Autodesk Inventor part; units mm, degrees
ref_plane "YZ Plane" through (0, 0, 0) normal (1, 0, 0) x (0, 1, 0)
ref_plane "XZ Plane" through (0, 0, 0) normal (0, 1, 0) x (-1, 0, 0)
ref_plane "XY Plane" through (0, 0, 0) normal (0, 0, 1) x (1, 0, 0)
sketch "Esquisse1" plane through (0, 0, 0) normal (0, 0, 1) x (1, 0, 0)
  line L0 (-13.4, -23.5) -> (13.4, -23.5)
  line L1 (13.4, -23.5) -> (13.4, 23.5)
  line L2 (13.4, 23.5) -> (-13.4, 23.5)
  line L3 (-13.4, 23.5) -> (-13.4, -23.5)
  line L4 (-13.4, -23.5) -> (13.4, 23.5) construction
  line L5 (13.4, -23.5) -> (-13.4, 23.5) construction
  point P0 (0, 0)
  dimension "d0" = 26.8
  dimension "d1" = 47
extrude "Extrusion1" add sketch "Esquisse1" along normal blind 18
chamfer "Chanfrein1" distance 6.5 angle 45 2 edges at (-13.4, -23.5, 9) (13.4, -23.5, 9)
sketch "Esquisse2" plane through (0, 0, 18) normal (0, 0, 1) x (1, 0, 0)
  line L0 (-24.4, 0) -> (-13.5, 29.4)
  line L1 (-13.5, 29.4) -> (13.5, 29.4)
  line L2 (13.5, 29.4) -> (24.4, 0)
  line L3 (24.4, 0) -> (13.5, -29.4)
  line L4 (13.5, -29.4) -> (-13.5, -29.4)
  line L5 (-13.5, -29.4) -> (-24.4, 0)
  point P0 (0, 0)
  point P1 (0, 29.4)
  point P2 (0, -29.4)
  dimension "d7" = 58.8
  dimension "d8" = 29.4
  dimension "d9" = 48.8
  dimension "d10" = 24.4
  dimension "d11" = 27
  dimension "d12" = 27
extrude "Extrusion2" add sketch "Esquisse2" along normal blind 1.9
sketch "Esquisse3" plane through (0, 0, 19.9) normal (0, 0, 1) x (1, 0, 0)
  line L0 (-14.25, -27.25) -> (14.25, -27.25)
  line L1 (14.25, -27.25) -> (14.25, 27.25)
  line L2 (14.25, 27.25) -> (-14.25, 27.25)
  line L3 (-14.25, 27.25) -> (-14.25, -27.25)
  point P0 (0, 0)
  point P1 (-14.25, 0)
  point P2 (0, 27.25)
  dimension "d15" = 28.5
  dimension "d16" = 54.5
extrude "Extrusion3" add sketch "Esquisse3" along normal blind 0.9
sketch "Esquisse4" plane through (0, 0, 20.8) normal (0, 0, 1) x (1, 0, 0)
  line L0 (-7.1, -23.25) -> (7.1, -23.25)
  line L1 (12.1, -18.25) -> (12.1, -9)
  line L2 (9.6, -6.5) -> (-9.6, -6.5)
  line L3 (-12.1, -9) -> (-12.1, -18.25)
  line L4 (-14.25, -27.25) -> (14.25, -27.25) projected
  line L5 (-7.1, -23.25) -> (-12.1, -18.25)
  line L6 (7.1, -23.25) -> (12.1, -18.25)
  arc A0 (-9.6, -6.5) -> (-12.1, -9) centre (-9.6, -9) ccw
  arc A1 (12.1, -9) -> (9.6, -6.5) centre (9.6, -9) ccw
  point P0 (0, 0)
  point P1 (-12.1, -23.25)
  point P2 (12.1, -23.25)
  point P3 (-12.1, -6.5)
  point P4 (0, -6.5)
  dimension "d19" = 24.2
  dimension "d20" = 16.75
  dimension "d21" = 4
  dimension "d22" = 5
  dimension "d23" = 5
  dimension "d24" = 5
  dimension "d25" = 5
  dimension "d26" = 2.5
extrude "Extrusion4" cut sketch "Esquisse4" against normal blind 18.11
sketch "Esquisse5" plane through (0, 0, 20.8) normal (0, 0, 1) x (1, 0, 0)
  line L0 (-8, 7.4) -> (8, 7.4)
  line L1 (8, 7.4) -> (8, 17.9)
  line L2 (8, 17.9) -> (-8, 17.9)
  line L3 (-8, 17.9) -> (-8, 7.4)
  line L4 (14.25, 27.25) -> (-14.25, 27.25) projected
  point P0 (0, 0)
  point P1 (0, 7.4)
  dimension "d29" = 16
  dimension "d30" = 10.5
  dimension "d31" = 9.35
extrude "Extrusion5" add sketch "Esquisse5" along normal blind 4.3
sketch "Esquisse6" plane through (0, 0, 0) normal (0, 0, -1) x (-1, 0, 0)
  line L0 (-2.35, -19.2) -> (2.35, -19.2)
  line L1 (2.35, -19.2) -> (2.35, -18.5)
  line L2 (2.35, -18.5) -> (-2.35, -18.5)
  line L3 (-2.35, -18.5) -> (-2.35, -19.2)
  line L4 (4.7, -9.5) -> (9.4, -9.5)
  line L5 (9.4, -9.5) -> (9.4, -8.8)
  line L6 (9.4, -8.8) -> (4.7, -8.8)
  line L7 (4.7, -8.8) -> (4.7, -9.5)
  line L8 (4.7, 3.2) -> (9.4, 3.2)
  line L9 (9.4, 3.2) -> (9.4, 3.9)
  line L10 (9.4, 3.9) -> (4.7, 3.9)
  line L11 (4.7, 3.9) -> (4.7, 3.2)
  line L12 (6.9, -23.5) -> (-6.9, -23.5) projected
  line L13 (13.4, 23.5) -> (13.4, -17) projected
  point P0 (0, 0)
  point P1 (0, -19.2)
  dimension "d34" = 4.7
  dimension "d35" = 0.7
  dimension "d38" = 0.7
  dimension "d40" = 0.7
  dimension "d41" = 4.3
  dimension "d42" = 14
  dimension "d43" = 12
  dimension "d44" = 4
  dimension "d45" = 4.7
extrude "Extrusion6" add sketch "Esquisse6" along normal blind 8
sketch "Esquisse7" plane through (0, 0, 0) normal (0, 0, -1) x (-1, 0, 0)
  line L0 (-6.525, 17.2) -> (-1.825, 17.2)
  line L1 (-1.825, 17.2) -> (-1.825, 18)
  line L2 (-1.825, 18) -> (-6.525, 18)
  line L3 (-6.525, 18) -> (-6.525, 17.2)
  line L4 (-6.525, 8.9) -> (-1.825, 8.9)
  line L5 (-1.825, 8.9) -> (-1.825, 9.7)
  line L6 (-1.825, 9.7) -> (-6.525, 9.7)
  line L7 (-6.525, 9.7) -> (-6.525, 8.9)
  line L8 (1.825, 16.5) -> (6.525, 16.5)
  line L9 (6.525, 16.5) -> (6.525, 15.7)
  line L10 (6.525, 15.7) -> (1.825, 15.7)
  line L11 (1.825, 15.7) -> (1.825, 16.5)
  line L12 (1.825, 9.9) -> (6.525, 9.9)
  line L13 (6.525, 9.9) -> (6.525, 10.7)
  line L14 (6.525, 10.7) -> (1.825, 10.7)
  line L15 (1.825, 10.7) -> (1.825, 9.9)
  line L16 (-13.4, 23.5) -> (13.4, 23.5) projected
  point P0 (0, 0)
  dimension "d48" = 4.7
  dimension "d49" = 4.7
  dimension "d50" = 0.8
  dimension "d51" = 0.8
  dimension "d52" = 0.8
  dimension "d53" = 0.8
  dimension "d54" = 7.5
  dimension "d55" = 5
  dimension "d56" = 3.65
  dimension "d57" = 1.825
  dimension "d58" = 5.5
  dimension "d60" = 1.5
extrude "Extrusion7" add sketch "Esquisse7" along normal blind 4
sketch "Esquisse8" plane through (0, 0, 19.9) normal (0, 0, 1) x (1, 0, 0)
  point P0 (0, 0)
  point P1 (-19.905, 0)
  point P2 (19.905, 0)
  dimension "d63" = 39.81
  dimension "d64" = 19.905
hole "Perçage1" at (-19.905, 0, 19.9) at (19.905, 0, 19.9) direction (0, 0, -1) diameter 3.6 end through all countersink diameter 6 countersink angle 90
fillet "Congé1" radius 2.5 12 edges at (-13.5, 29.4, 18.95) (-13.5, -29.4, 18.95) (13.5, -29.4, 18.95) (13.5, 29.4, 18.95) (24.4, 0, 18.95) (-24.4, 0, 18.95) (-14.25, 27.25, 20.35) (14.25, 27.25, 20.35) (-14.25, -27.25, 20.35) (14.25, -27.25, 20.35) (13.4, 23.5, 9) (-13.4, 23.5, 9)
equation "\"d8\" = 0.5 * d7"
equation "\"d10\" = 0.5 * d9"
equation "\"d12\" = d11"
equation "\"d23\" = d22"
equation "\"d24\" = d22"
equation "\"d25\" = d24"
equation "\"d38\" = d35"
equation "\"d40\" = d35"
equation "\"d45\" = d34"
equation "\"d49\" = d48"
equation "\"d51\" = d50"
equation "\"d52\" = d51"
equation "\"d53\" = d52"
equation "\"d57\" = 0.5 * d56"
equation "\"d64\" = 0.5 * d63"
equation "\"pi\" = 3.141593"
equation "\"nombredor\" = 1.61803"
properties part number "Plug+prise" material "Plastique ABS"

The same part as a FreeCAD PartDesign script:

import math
import FreeCAD as App
import Part
import Sketcher
from FreeCAD import Vector


def edges_at(feature, points):
    """Names of the edges that pass closest to the given points."""
    edges = feature.Shape.Edges
    near = lambda p: min(range(len(edges)), key=lambda i: edges[i].distToShape(Part.Vertex(*p))[0])
    return sorted({f"Edge{near(p) + 1}" for p in points})

doc = App.newDocument("Part")
body = doc.addObject("PartDesign::Body", "Body")

# Sketch on XY plane
sketch1 = body.newObject("Sketcher::SketchObject", "Sketch")
sketch1.AttachmentSupport = (doc.getObject("XY_Plane"), [""])
sketch1.MapMode = "FlatFace"
sketch1.addGeometry([
    Part.LineSegment(Vector(-13, 24, 0), Vector(-13, -24, 0)),
    Part.LineSegment(Vector(-13, -24, 0), Vector(13, -24, 0)),
    Part.LineSegment(Vector(13, -24, 0), Vector(13, 24, 0)),
    Part.LineSegment(Vector(13, 24, 0), Vector(-13, 24, 0)),
], False)
sketch1.addConstraint([
    Sketcher.Constraint("Coincident", 0, 2, 1, 1),
    Sketcher.Constraint("Coincident", 1, 2, 2, 1),
    Sketcher.Constraint("Coincident", 2, 2, 3, 1),
    Sketcher.Constraint("Coincident", 3, 2, 0, 1),
    Sketcher.Constraint("Vertical", 0),
    Sketcher.Constraint("Horizontal", 1),
    Sketcher.Constraint("Vertical", 2),
    Sketcher.Constraint("Horizontal", 3),
    Sketcher.Constraint("Symmetric", 0, 2, 2, 2, -1, 1),
    Sketcher.Constraint("DistanceY", 0, 2, 0, 1, 47.0),
    Sketcher.Constraint("DistanceX", 1, 1, 1, 2, 26.8),
])
pad1 = body.newObject("PartDesign::Pad", "Pad")
pad1.Profile = sketch1
pad1.Length = 18
doc.recompute()

chamfer = body.newObject("PartDesign::Chamfer", "Chamfer")
chamfer.Base = (pad1, edges_at(pad1, [(-13.4, -23.5, 9), (13.4, -23.5, 9)]))
chamfer.Size = 6.5

# Sketch on XY plane
sketch2 = body.newObject("Sketcher::SketchObject", "Sketch001")
sketch2.AttachmentSupport = (doc.getObject("XY_Plane"), [""])
sketch2.MapMode = "FlatFace"
sketch2.AttachmentOffset = App.Placement(Vector(0, 0, 18), App.Rotation())
sketch2.addGeometry([
    Part.LineSegment(Vector(-14, 29, 0), Vector(-24, 0, 0)),  # 0
    Part.LineSegment(Vector(-24, 0, 0), Vector(-14, -29, 0)),  # 1
    Part.LineSegment(Vector(-14, -29, 0), Vector(14, -29, 0)),  # 2
    Part.LineSegment(Vector(14, -29, 0), Vector(24, 0, 0)),  # 3
    Part.LineSegment(Vector(24, 0, 0), Vector(14, 29, 0)),  # 4
    Part.LineSegment(Vector(14, 29, 0), Vector(-14, 29, 0)),  # 5
], False)
sketch2.addConstraint([
    Sketcher.Constraint("Coincident", 0, 2, 1, 1),
    Sketcher.Constraint("Coincident", 1, 2, 2, 1),
    Sketcher.Constraint("Coincident", 2, 2, 3, 1),
    Sketcher.Constraint("Coincident", 3, 2, 4, 1),
    Sketcher.Constraint("Coincident", 4, 2, 5, 1),
    Sketcher.Constraint("Coincident", 5, 2, 0, 1),
    Sketcher.Constraint("Horizontal", 2),
    Sketcher.Constraint("Horizontal", 5),
    Sketcher.Constraint("Symmetric", 0, 2, 3, 2, -1, 1),
    Sketcher.Constraint("Symmetric", 1, 2, 4, 2, -1, 1),
    Sketcher.Constraint("PointOnObject", 0, 2, -1),
    Sketcher.Constraint("Parallel", 0, 3),
    Sketcher.Constraint("Vertical", 2, 2, 4, 2),
    Sketcher.Constraint("DistanceX", 2, 1, 2, 2, 27.0),
    Sketcher.Constraint("DistanceX", 0, 2, -1, 1, 24.4),
    Sketcher.Constraint("DistanceY", 1, 2, -1, 1, 29.4),
])
pad2 = body.newObject("PartDesign::Pad", "Pad001")
pad2.Profile = sketch2
pad2.Length = 1.9

# Sketch on XY plane
sketch3 = body.newObject("Sketcher::SketchObject", "Sketch002")
sketch3.AttachmentSupport = (doc.getObject("XY_Plane"), [""])
sketch3.MapMode = "FlatFace"
sketch3.AttachmentOffset = App.Placement(Vector(0, 0, 19.9), App.Rotation())
sketch3.addGeometry([
    Part.LineSegment(Vector(-14, 27, 0), Vector(-14, -27, 0)),
    Part.LineSegment(Vector(-14, -27, 0), Vector(14, -27, 0)),
    Part.LineSegment(Vector(14, -27, 0), Vector(14, 27, 0)),
    Part.LineSegment(Vector(14, 27, 0), Vector(-14, 27, 0)),
], False)
sketch3.addConstraint([
    Sketcher.Constraint("Coincident", 0, 2, 1, 1),
    Sketcher.Constraint("Coincident", 1, 2, 2, 1),
    Sketcher.Constraint("Coincident", 2, 2, 3, 1),
    Sketcher.Constraint("Coincident", 3, 2, 0, 1),
    Sketcher.Constraint("Vertical", 0),
    Sketcher.Constraint("Horizontal", 1),
    Sketcher.Constraint("Vertical", 2),
    Sketcher.Constraint("Horizontal", 3),
    Sketcher.Constraint("Symmetric", 0, 2, 2, 2, -1, 1),
    Sketcher.Constraint("DistanceX", 1, 1, 1, 2, 28.5),
    Sketcher.Constraint("DistanceY", 0, 2, 0, 1, 54.5),
])
pad3 = body.newObject("PartDesign::Pad", "Pad002")
pad3.Profile = sketch3
pad3.Length = 0.9

# Sketch on XY plane
sketch4 = body.newObject("Sketcher::SketchObject", "Sketch003")
sketch4.AttachmentSupport = (doc.getObject("XY_Plane"), [""])
sketch4.MapMode = "FlatFace"
sketch4.AttachmentOffset = App.Placement(Vector(0, 0, 20.8), App.Rotation())
sketch4.addGeometry([
    Part.LineSegment(Vector(-12.1, -18.2, 0), Vector(-7.1, -23.2, 0)),  # 0
    Part.LineSegment(Vector(-7.1, -23.2, 0), Vector(7.1, -23.2, 0)),  # 1
    Part.LineSegment(Vector(7.1, -23.2, 0), Vector(12.1, -18.2, 0)),  # 2
    Part.LineSegment(Vector(12.1, -18.2, 0), Vector(12.1, -9, 0)),  # 3
    Part.ArcOfCircle(Part.Circle(Vector(9.6, -9, 0), Vector(0, 0, 1), 2.5), math.radians(0), math.radians(90)),  # 4
    Part.LineSegment(Vector(9.6, -6.5, 0), Vector(-9.6, -6.5, 0)),  # 5
    Part.ArcOfCircle(Part.Circle(Vector(-9.6, -9, 0), Vector(0, 0, 1), 2.5), math.radians(90), math.radians(180)),  # 6
    Part.LineSegment(Vector(-12.1, -9, 0), Vector(-12.1, -18.2, 0)),  # 7
], False)
sketch4.addConstraint([
    Sketcher.Constraint("Coincident", 0, 2, 1, 1),
    Sketcher.Constraint("Coincident", 1, 2, 2, 1),
    Sketcher.Constraint("Coincident", 2, 2, 3, 1),
    Sketcher.Constraint("Tangent", 3, 2, 4, 1),
    Sketcher.Constraint("Tangent", 4, 2, 5, 1),
    Sketcher.Constraint("Tangent", 5, 2, 6, 1),
    Sketcher.Constraint("Tangent", 6, 2, 7, 1),
    Sketcher.Constraint("Coincident", 7, 2, 0, 1),
    Sketcher.Constraint("Horizontal", 1),
    Sketcher.Constraint("Vertical", 3),
    Sketcher.Constraint("Horizontal", 5),
    Sketcher.Constraint("Vertical", 7),
    Sketcher.Constraint("Equal", 4, 6),
    Sketcher.Constraint("Symmetric", 2, 2, 7, 2, -2),
    Sketcher.Constraint("Perpendicular", 0, 2),
    Sketcher.Constraint("Equal", 0, 2),
    Sketcher.Constraint("Radius", 4, 2.5),
    Sketcher.Constraint("DistanceX", 1, 2, 2, 2, 5.0),
    Sketcher.Constraint("DistanceY", 1, 2, 4, 2, 16.75),
    Sketcher.Constraint("DistanceX", 1, 1, 1, 2, 14.2),
    Sketcher.Constraint("DistanceY", 4, 3, -1, 1, 9.0),
])
pocket1 = body.newObject("PartDesign::Pocket", "Pocket")
pocket1.Profile = sketch4
pocket1.Length = 18.11

# Sketch on XY plane
sketch5 = body.newObject("Sketcher::SketchObject", "Sketch004")
sketch5.AttachmentSupport = (doc.getObject("XY_Plane"), [""])
sketch5.MapMode = "FlatFace"
sketch5.AttachmentOffset = App.Placement(Vector(0, 0, 20.8), App.Rotation())
sketch5.addGeometry([
    Part.LineSegment(Vector(-8, 18, 0), Vector(-8, 7, 0)),
    Part.LineSegment(Vector(-8, 7, 0), Vector(8, 7, 0)),
    Part.LineSegment(Vector(8, 7, 0), Vector(8, 18, 0)),
    Part.LineSegment(Vector(8, 18, 0), Vector(-8, 18, 0)),
], False)
sketch5.addConstraint([
    Sketcher.Constraint("Coincident", 0, 2, 1, 1),
    Sketcher.Constraint("Coincident", 1, 2, 2, 1),
    Sketcher.Constraint("Coincident", 2, 2, 3, 1),
    Sketcher.Constraint("Coincident", 3, 2, 0, 1),
    Sketcher.Constraint("Vertical", 0),
    Sketcher.Constraint("Horizontal", 1),
    Sketcher.Constraint("Vertical", 2),
    Sketcher.Constraint("Horizontal", 3),
    Sketcher.Constraint("DistanceX", 1, 1, 1, 2, 16.0),
    Sketcher.Constraint("DistanceY", 0, 2, 0, 1, 10.5),
    Sketcher.Constraint("DistanceX", 0, 2, -1, 1, 8.0),
    Sketcher.Constraint("DistanceY", -1, 1, 0, 2, 7.4),
])
pad4 = body.newObject("PartDesign::Pad", "Pad003")
pad4.Profile = sketch5
pad4.Length = 4.3

# Sketch on XY plane
sketch6 = body.newObject("Sketcher::SketchObject", "Sketch005")
sketch6.AttachmentSupport = (doc.getObject("XY_Plane"), [""])
sketch6.MapMode = "FlatFace"
sketch6.addGeometry([
    Part.LineSegment(Vector(2.4, -18.5, 0), Vector(2.4, -19.2, 0)),  # 0
    Part.LineSegment(Vector(2.4, -19.2, 0), Vector(-2.4, -19.2, 0)),  # 1
    Part.LineSegment(Vector(-2.4, -19.2, 0), Vector(-2.4, -18.5, 0)),  # 2
    Part.LineSegment(Vector(-2.4, -18.5, 0), Vector(2.4, -18.5, 0)),  # 3
    Part.LineSegment(Vector(-4.7, -8.8, 0), Vector(-4.7, -9.5, 0)),  # 4
    Part.LineSegment(Vector(-4.7, -9.5, 0), Vector(-9.4, -9.5, 0)),  # 5
    Part.LineSegment(Vector(-9.4, -9.5, 0), Vector(-9.4, -8.8, 0)),  # 6
    Part.LineSegment(Vector(-9.4, -8.8, 0), Vector(-4.7, -8.8, 0)),  # 7
    Part.LineSegment(Vector(-4.7, 3.9, 0), Vector(-4.7, 3.2, 0)),  # 8
    Part.LineSegment(Vector(-4.7, 3.2, 0), Vector(-9.4, 3.2, 0)),  # 9
    Part.LineSegment(Vector(-9.4, 3.2, 0), Vector(-9.4, 3.9, 0)),  # 10
    Part.LineSegment(Vector(-9.4, 3.9, 0), Vector(-4.7, 3.9, 0)),  # 11
], False)
sketch6.addConstraint([
    Sketcher.Constraint("Coincident", 0, 2, 1, 1),
    Sketcher.Constraint("Coincident", 1, 2, 2, 1),
    Sketcher.Constraint("Coincident", 2, 2, 3, 1),
    Sketcher.Constraint("Coincident", 3, 2, 0, 1),
    Sketcher.Constraint("Coincident", 4, 2, 5, 1),
    Sketcher.Constraint("Coincident", 5, 2, 6, 1),
    Sketcher.Constraint("Coincident", 6, 2, 7, 1),
    Sketcher.Constraint("Coincident", 7, 2, 4, 1),
    Sketcher.Constraint("Coincident", 8, 2, 9, 1),
    Sketcher.Constraint("Coincident", 9, 2, 10, 1),
    Sketcher.Constraint("Coincident", 10, 2, 11, 1),
    Sketcher.Constraint("Coincident", 11, 2, 8, 1),
    Sketcher.Constraint("Vertical", 0),
    Sketcher.Constraint("Horizontal", 1),
    Sketcher.Constraint("Vertical", 2),
    Sketcher.Constraint("Horizontal", 3),
    Sketcher.Constraint("Vertical", 4),
    Sketcher.Constraint("Horizontal", 5),
    Sketcher.Constraint("Vertical", 6),
    Sketcher.Constraint("Horizontal", 7),
    Sketcher.Constraint("Vertical", 8),
    Sketcher.Constraint("Horizontal", 9),
    Sketcher.Constraint("Vertical", 10),
    Sketcher.Constraint("Horizontal", 11),
    Sketcher.Constraint("Vertical", 7, 2, 8, 2),
    Sketcher.Constraint("Vertical", 6, 2, 9, 2),
    Sketcher.Constraint("Equal", 3, 5),
    Sketcher.Constraint("Equal", 2, 4),
    Sketcher.Constraint("Equal", 6, 8),
    Sketcher.Constraint("DistanceX", 1, 2, 1, 1, 4.7),
    Sketcher.Constraint("DistanceY", 0, 2, 0, 1, 0.7),
    Sketcher.Constraint("DistanceY", 7, 2, 8, 2, 12.0),
    Sketcher.Constraint("DistanceX", 4, 2, -1, 1, 4.7),
    Sketcher.Constraint("DistanceY", 2, 2, 4, 2, 9.0),
    Sketcher.Constraint("DistanceY", 0, 2, -1, 1, 19.2),
    Sketcher.Constraint("DistanceX", -1, 1, 0, 2, 2.35),
])
pad5 = body.newObject("PartDesign::Pad", "Pad004")
pad5.Profile = sketch6
pad5.Length = 8
pad5.Reversed = True

# Sketch on XY plane
sketch7 = body.newObject("Sketcher::SketchObject", "Sketch006")
sketch7.AttachmentSupport = (doc.getObject("XY_Plane"), [""])
sketch7.MapMode = "FlatFace"
sketch7.addGeometry([
    Part.LineSegment(Vector(6.5, 18, 0), Vector(6.5, 17.2, 0)),  # 0
    Part.LineSegment(Vector(6.5, 17.2, 0), Vector(1.8, 17.2, 0)),  # 1
    Part.LineSegment(Vector(1.8, 17.2, 0), Vector(1.8, 18, 0)),  # 2
    Part.LineSegment(Vector(1.8, 18, 0), Vector(6.5, 18, 0)),  # 3
    Part.LineSegment(Vector(6.5, 9.7, 0), Vector(6.5, 8.9, 0)),  # 4
    Part.LineSegment(Vector(6.5, 8.9, 0), Vector(1.8, 8.9, 0)),  # 5
    Part.LineSegment(Vector(1.8, 8.9, 0), Vector(1.8, 9.7, 0)),  # 6
    Part.LineSegment(Vector(1.8, 9.7, 0), Vector(6.5, 9.7, 0)),  # 7
    Part.LineSegment(Vector(-6.5, 16.5, 0), Vector(-1.8, 16.5, 0)),  # 8
    Part.LineSegment(Vector(-1.8, 16.5, 0), Vector(-1.8, 15.7, 0)),  # 9
    Part.LineSegment(Vector(-1.8, 15.7, 0), Vector(-6.5, 15.7, 0)),  # 10
    Part.LineSegment(Vector(-6.5, 15.7, 0), Vector(-6.5, 16.5, 0)),  # 11
    Part.LineSegment(Vector(-1.8, 10.7, 0), Vector(-1.8, 9.9, 0)),  # 12
    Part.LineSegment(Vector(-1.8, 9.9, 0), Vector(-6.5, 9.9, 0)),  # 13
    Part.LineSegment(Vector(-6.5, 9.9, 0), Vector(-6.5, 10.7, 0)),  # 14
    Part.LineSegment(Vector(-6.5, 10.7, 0), Vector(-1.8, 10.7, 0)),  # 15
], False)
sketch7.addConstraint([
    Sketcher.Constraint("Coincident", 0, 2, 1, 1),
    Sketcher.Constraint("Coincident", 1, 2, 2, 1),
    Sketcher.Constraint("Coincident", 2, 2, 3, 1),
    Sketcher.Constraint("Coincident", 3, 2, 0, 1),
    Sketcher.Constraint("Coincident", 4, 2, 5, 1),
    Sketcher.Constraint("Coincident", 5, 2, 6, 1),
    Sketcher.Constraint("Coincident", 6, 2, 7, 1),
    Sketcher.Constraint("Coincident", 7, 2, 4, 1),
    Sketcher.Constraint("Coincident", 8, 2, 9, 1),
    Sketcher.Constraint("Coincident", 9, 2, 10, 1),
    Sketcher.Constraint("Coincident", 10, 2, 11, 1),
    Sketcher.Constraint("Coincident", 11, 2, 8, 1),
    Sketcher.Constraint("Coincident", 12, 2, 13, 1),
    Sketcher.Constraint("Coincident", 13, 2, 14, 1),
    Sketcher.Constraint("Coincident", 14, 2, 15, 1),
    Sketcher.Constraint("Coincident", 15, 2, 12, 1),
    Sketcher.Constraint("Vertical", 0),
    Sketcher.Constraint("Horizontal", 1),
    Sketcher.Constraint("Vertical", 2),
    Sketcher.Constraint("Horizontal", 3),
    Sketcher.Constraint("Vertical", 4),
    Sketcher.Constraint("Horizontal", 5),
    Sketcher.Constraint("Vertical", 6),
    Sketcher.Constraint("Horizontal", 7),
    Sketcher.Constraint("Horizontal", 8),
    Sketcher.Constraint("Vertical", 9),
    Sketcher.Constraint("Horizontal", 10),
    Sketcher.Constraint("Vertical", 11),
    Sketcher.Constraint("Vertical", 12),
    Sketcher.Constraint("Horizontal", 13),
    Sketcher.Constraint("Vertical", 14),
    Sketcher.Constraint("Horizontal", 15),
    Sketcher.Constraint("Vertical", 3, 2, 4, 2),
    Sketcher.Constraint("Vertical", 2, 2, 5, 2),
    Sketcher.Constraint("Vertical", 9, 2, 12, 2),
    Sketcher.Constraint("Vertical", 11, 2, 13, 2),
    Sketcher.Constraint("Equal", 7, 8),
    Sketcher.Constraint("Equal", 2, 4),
    Sketcher.Constraint("Equal", 6, 9),
    Sketcher.Constraint("Equal", 11, 12),
    Sketcher.Constraint("DistanceX", 1, 2, 1, 1, 4.7),
    Sketcher.Constraint("DistanceY", 0, 2, 0, 1, 0.8),
    Sketcher.Constraint("DistanceY", 14, 2, 10, 2, 5.0),
    Sketcher.Constraint("DistanceY", 6, 2, 1, 2, 7.5),
    Sketcher.Constraint("DistanceY", 8, 2, 2, 2, 1.5),
    Sketcher.Constraint("DistanceX", 8, 2, 1, 2, 3.65),
    Sketcher.Constraint("DistanceX", -1, 1, 1, 2, 1.825),
    Sketcher.Constraint("DistanceY", -1, 1, 2, 2, 18.0),
])
pad6 = body.newObject("PartDesign::Pad", "Pad005")
pad6.Profile = sketch7
pad6.Length = 4
pad6.Reversed = True

# Sketch on XY plane
sketch8 = body.newObject("Sketcher::SketchObject", "Sketch007")
sketch8.AttachmentSupport = (doc.getObject("XY_Plane"), [""])
sketch8.MapMode = "FlatFace"
sketch8.AttachmentOffset = App.Placement(Vector(0, 0, 19.9), App.Rotation())
sketch8.addGeometry([
    Part.Circle(Vector(-19.9, 0, 0), Vector(0, 0, 1), 1.8),
    Part.Circle(Vector(19.9, 0, 0), Vector(0, 0, 1), 1.8),
], False)
sketch8.addConstraint([
    Sketcher.Constraint("Equal", 0, 1),
    Sketcher.Constraint("Symmetric", 0, 3, 1, 3, -1, 1),
    Sketcher.Constraint("PointOnObject", 0, 3, -1),
    Sketcher.Constraint("Diameter", 0, 3.6),
    Sketcher.Constraint("DistanceX", 0, 3, 1, 3, 39.81),
])
doc.recompute()
hole = body.newObject("PartDesign::Hole", "Hole")
hole.Profile = sketch8
hole.ThreadType = "None"
hole.Diameter = 3.6
hole.DepthType = "ThroughAll"
hole.HoleCutType = "Countersink"
hole.HoleCutDiameter = 6
hole.HoleCutCountersinkAngle = 90
doc.recompute()

fillet = body.newObject("PartDesign::Fillet", "Fillet")
fillet.Base = (hole, edges_at(hole, [
    (-13.5, 29.4, 18.95),
    (-13.5, -29.4, 18.95),
    (13.5, -29.4, 18.95),
    (13.5, 29.4, 18.95),
    (24.4, 0, 18.95),
    (-24.4, 0, 18.95),
    (-14.25, 27.25, 20.35),
    (14.25, 27.25, 20.35),
    (-14.25, -27.25, 20.35),
    (14.25, -27.25, 20.35),
    (13.4, 23.5, 9),
    (-13.4, 23.5, 9),
]))
fillet.Radius = 2.5

doc.recompute()
